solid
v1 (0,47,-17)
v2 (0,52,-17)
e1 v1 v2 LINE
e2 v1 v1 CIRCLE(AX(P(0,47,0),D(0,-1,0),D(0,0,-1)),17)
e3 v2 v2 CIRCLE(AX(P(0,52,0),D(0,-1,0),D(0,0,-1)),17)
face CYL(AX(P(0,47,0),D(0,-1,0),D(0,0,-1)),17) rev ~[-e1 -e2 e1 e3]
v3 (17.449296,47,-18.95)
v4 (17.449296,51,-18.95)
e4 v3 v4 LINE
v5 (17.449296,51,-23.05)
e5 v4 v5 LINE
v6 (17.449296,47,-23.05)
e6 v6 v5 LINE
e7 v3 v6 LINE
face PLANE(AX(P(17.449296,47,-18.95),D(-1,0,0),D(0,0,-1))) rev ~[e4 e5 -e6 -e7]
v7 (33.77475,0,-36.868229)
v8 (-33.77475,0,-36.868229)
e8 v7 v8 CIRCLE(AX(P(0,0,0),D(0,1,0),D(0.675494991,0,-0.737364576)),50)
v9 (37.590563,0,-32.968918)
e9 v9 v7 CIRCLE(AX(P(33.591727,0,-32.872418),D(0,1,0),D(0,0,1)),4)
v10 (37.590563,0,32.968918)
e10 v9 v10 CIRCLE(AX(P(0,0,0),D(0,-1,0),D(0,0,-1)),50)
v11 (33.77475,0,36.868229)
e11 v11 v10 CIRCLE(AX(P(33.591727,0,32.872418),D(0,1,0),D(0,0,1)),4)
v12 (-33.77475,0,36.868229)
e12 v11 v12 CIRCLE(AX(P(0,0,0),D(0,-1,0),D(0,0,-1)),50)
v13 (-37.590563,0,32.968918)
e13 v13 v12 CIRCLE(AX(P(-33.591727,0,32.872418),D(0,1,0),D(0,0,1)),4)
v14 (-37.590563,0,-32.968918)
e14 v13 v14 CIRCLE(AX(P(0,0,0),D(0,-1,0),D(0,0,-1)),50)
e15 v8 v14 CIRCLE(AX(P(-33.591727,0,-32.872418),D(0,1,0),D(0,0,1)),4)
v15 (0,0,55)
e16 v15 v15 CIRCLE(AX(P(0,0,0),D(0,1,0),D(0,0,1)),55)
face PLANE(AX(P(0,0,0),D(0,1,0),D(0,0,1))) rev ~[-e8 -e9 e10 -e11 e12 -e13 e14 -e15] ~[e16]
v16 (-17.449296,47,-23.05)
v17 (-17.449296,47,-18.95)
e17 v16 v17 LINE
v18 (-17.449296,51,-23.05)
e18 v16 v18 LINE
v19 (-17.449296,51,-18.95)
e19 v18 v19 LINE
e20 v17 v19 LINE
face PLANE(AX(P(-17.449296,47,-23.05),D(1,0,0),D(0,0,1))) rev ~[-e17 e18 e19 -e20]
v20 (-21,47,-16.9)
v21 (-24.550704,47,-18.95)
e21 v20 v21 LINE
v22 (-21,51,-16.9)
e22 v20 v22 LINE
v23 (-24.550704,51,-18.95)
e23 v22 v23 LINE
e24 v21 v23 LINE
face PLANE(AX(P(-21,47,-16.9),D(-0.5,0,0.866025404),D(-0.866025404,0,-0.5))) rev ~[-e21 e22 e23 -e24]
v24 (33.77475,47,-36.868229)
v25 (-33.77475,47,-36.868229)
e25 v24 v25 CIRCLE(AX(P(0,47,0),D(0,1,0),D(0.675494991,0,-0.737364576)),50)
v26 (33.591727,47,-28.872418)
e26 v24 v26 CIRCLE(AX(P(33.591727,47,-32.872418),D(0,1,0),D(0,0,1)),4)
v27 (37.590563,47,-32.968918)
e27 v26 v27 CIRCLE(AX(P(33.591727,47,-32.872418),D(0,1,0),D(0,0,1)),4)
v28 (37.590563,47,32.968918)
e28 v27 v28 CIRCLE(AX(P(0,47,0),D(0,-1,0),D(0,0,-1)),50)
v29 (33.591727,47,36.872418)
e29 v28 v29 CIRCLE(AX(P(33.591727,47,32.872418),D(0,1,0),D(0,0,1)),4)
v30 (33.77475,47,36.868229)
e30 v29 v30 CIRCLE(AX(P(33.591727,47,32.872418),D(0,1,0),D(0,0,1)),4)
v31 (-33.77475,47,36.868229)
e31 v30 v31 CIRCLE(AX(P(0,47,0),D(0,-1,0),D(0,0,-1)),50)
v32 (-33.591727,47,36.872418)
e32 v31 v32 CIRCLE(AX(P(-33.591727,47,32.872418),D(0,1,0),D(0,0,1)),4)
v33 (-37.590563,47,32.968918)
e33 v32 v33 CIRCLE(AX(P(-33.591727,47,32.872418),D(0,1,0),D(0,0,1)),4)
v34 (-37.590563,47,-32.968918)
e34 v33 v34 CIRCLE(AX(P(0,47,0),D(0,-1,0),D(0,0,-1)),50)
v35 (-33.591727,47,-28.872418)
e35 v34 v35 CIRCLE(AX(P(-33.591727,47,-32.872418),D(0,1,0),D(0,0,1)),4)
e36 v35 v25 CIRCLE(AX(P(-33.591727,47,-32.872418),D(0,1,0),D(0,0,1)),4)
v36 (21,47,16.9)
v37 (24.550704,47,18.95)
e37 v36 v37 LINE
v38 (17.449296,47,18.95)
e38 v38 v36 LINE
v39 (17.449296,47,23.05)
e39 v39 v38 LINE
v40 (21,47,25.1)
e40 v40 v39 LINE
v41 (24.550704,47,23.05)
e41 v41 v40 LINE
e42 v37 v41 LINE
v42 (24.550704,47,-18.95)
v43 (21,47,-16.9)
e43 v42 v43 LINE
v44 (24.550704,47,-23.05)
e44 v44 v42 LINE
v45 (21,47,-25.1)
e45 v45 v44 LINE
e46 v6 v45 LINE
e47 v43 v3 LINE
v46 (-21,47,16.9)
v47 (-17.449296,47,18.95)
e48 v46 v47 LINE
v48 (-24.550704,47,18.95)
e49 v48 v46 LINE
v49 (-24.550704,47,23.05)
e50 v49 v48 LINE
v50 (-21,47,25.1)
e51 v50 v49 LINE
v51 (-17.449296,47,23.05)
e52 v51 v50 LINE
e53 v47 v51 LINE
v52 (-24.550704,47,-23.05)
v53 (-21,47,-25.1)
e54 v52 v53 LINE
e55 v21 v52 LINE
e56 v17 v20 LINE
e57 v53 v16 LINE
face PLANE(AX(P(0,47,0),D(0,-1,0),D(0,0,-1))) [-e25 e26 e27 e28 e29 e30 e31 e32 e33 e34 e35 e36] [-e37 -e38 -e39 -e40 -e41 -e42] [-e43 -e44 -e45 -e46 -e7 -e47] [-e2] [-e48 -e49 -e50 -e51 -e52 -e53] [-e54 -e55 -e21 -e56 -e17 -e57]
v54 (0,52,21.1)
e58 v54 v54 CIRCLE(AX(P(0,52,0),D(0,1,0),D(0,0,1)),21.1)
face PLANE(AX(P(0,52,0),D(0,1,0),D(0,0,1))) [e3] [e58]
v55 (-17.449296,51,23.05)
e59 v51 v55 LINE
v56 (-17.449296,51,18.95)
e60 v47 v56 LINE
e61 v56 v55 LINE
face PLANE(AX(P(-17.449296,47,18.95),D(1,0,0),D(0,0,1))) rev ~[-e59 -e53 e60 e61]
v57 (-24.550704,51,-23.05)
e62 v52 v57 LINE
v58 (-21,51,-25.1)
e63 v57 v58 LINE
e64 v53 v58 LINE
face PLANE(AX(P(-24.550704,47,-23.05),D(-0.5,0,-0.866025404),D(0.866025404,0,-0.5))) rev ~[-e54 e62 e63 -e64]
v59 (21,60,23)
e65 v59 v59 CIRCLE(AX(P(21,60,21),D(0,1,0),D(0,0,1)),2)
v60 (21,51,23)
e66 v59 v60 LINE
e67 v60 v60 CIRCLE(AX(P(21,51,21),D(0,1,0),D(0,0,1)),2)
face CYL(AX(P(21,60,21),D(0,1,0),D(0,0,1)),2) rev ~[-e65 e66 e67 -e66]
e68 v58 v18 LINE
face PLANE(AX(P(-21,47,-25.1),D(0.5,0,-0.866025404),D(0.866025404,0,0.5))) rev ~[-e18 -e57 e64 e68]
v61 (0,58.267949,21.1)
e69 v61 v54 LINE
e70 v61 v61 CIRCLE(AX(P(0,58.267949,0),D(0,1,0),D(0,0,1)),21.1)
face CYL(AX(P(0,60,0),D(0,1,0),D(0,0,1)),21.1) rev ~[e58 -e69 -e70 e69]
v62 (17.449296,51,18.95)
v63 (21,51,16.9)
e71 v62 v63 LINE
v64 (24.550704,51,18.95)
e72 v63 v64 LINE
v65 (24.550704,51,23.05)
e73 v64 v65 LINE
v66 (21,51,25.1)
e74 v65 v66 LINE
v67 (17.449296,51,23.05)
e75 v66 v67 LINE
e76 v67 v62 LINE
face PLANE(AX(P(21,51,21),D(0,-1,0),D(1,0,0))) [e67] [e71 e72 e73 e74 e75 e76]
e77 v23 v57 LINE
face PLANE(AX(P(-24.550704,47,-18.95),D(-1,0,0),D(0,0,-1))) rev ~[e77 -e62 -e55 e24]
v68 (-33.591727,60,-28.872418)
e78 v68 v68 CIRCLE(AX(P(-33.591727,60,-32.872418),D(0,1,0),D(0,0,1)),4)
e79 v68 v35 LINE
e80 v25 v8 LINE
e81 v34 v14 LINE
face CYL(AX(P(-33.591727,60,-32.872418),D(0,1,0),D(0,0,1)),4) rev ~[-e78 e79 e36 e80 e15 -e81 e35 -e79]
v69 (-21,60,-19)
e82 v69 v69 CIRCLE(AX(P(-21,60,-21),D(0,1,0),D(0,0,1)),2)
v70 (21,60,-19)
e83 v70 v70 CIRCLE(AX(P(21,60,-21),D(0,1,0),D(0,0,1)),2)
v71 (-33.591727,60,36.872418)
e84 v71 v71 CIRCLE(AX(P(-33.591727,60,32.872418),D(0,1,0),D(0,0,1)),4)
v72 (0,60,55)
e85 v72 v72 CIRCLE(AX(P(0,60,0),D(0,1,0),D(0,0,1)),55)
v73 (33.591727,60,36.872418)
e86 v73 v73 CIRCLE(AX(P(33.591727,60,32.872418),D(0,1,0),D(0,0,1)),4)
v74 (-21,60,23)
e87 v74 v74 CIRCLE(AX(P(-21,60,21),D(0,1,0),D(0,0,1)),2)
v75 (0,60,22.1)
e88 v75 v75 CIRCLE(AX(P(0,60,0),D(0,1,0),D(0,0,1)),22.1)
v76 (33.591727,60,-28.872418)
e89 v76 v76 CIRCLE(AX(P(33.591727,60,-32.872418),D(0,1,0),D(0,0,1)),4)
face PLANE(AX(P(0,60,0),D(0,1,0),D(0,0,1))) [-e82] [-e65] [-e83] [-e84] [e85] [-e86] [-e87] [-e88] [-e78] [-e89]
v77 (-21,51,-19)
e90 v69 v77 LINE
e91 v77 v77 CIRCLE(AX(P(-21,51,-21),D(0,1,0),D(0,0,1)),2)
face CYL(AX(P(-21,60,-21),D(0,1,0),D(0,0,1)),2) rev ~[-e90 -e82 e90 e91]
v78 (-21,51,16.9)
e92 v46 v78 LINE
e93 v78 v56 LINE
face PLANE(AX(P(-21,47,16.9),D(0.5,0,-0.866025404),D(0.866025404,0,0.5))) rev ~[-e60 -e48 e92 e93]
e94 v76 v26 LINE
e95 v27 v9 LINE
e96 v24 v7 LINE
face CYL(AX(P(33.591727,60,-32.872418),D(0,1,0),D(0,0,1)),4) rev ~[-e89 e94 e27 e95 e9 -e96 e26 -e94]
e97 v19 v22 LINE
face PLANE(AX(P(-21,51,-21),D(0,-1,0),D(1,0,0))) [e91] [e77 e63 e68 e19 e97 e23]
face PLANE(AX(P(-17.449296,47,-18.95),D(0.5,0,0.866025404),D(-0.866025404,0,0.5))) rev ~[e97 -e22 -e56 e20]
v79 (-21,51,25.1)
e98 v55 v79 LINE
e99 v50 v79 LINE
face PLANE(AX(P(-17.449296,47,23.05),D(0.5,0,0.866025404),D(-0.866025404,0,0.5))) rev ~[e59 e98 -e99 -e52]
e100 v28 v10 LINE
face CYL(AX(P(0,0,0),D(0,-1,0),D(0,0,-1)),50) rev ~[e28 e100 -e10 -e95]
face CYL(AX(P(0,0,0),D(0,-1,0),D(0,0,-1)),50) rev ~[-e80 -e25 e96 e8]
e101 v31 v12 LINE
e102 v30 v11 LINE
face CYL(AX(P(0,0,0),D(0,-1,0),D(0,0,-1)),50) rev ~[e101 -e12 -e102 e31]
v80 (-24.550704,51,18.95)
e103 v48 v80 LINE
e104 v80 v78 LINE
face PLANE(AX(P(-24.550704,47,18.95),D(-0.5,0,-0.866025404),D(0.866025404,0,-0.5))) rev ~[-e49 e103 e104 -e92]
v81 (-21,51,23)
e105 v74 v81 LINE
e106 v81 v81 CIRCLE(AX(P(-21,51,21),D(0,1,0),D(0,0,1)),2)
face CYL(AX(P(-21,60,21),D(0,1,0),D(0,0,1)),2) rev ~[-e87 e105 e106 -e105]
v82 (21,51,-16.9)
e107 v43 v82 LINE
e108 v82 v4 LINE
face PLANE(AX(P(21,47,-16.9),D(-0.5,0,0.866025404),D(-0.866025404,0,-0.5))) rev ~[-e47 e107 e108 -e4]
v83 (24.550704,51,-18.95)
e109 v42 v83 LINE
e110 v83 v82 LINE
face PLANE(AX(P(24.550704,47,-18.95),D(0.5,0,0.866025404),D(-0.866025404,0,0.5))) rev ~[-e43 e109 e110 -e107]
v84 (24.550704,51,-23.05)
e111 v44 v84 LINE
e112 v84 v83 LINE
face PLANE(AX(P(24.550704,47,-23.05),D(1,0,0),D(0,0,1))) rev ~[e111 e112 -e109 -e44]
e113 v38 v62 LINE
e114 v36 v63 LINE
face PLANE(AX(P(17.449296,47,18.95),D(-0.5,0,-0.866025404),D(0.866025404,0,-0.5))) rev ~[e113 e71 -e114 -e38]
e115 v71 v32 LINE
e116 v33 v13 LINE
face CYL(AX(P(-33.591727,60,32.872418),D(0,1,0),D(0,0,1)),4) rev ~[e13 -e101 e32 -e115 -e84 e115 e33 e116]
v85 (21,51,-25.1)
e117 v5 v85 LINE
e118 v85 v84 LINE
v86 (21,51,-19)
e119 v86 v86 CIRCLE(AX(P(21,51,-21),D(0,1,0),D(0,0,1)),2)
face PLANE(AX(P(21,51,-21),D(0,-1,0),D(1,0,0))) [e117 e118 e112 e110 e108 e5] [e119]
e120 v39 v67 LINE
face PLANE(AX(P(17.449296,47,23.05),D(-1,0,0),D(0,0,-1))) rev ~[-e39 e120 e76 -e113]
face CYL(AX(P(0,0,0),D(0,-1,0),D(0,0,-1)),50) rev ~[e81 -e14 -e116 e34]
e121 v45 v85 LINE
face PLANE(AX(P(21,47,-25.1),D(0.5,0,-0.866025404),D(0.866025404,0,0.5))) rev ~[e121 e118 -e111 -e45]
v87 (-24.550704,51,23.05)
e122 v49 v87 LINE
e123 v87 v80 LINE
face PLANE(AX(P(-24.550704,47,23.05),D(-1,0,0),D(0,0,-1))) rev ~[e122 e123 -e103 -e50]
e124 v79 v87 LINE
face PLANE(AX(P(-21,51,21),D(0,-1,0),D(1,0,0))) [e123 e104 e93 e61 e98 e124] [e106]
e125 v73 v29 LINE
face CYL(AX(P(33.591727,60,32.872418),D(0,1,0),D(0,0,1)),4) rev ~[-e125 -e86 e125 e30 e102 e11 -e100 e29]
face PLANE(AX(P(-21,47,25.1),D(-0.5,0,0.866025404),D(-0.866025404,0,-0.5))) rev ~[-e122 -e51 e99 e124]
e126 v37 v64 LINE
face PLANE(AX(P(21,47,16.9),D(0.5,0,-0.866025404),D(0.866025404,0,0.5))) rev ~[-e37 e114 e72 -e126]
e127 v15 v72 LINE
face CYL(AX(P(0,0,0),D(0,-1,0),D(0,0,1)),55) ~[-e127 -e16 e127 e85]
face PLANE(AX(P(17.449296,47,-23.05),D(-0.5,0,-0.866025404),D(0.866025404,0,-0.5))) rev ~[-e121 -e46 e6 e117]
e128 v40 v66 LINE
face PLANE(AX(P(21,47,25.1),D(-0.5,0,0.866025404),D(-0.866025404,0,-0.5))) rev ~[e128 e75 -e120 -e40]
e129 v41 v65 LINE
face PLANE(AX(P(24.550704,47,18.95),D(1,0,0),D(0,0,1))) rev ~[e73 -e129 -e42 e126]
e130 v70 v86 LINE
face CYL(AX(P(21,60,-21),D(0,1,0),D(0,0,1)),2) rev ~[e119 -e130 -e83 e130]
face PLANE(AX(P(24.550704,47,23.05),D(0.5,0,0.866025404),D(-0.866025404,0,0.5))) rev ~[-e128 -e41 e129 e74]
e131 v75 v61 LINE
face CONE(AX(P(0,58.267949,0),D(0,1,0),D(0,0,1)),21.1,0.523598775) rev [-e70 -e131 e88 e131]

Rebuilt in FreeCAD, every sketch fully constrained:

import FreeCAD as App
import Part
import Sketcher

V = App.Vector
Q = App.Units.Quantity


def edges_at(feature, points):
    """Names of the edges that pass closest to the given points."""
    edges = feature.Shape.Edges
    near = lambda p: min(range(len(edges)), key=lambda i: edges[i].distToShape(Part.Vertex(*p))[0])
    return sorted({f"Edge{near(p) + 1}" for p in points})


def add_polygon(sketch, points):
    """Adds a closed chain of lines whose ends are joined by coincident constraints."""
    first, n = sketch.GeometryCount, len(points)
    for a, b in zip(points, points[1:] + points[:1]):
        sketch.addGeometry(Part.LineSegment(App.Vector(*a, 0), App.Vector(*b, 0)), False)
    for i in range(n):
        sketch.addConstraint(Sketcher.Constraint("Coincident", first + i, 2, first + (i + 1) % n, 1))

doc = App.newDocument("Part")
params = doc.addObject("Spreadsheet::Sheet", "Params")
for row, (alias, value) in enumerate([
    ("sketch1_diameter", "110 mm"),
    ("pad1_length", "60 mm"),
    ("sketch2_diameter", "100 mm"),
    ("pocket1_length", "47 mm"),
    ("sketch3_diameter", "34 mm"),
    ("sketch4_diameter", "8 mm"),
    ("sketch5_diameter", "42.2 mm"),
    ("pocket4_length", "8 mm"),
    ("chamfer_size", "1 mm"),
    ("chamfer_size2", "1.732051 mm"),
    ("sketch6_diameter", "4 mm"),
    ("sketch7_height", "4.1 mm"),
    ("sketch7_length", "4.1 mm"),
    ("pocket6_length", "4 mm"),
], start=1):
    params.set(f"A{row}", alias)
    params.set(f"B{row}", "=" + value)
    params.setAlias(f"B{row}", alias)

body = doc.addObject("PartDesign::Body", "Body")

# Sketch on XZ plane
sketch1 = doc.addObject("Sketcher::SketchObject", "Sketch")
body.addObject(sketch1)
sketch1.AttachmentSupport = (doc.XZ_Plane, [""])
sketch1.MapMode = "FlatFace"
sketch1.addGeometry(Part.Circle(V(0, 0, 0), V(0, 0, 1), 55), False)
sketch1.addConstraint(Sketcher.Constraint("Coincident", 0, 3, -1, 1))
sketch1.addConstraint(Sketcher.Constraint("Diameter", 0, 110.0))
sketch1.setExpression("Constraints[1]", "Params.sketch1_diameter")
pad1 = doc.addObject("PartDesign::Pad", "Pad")
body.addObject(pad1)
pad1.Profile = sketch1
pad1.setExpression("Length", "Params.pad1_length")
pad1.Reversed = True

# Sketch on XZ plane
sketch2 = doc.addObject("Sketcher::SketchObject", "Sketch001")
body.addObject(sketch2)
sketch2.AttachmentSupport = (doc.XZ_Plane, [""])
sketch2.MapMode = "FlatFace"
sketch2.addGeometry(Part.Circle(V(0, 0, 0), V(0, 0, 1), 50), False)
sketch2.addConstraint(Sketcher.Constraint("Coincident", 0, 3, -1, 1))
sketch2.addConstraint(Sketcher.Constraint("Diameter", 0, 100.0))
sketch2.setExpression("Constraints[1]", "Params.sketch2_diameter")
pocket1 = doc.addObject("PartDesign::Pocket", "Pocket")
body.addObject(pocket1)
pocket1.Profile = sketch2
pocket1.setExpression("Length", "Params.pocket1_length")

# Sketch on XZ plane
sketch3 = doc.addObject("Sketcher::SketchObject", "Sketch002")
body.addObject(sketch3)
sketch3.AttachmentSupport = (doc.XZ_Plane, [""])
sketch3.MapMode = "FlatFace"
sketch3.AttachmentOffset = App.Placement(V(0, 0, -47), App.Rotation())
sketch3.addGeometry(Part.Circle(V(0, 0, 0), V(0, 0, 1), 17), False)
sketch3.addConstraint(Sketcher.Constraint("Coincident", 0, 3, -1, 1))
sketch3.addConstraint(Sketcher.Constraint("Diameter", 0, 34.0))
sketch3.setExpression("Constraints[1]", "Params.sketch3_diameter")
pocket2 = doc.addObject("PartDesign::Pocket", "Pocket001")
body.addObject(pocket2)
pocket2.Profile = sketch3
pocket2.Type = "ThroughAll"

# Sketch on XZ plane
sketch4 = doc.addObject("Sketcher::SketchObject", "Sketch003")
body.addObject(sketch4)
sketch4.AttachmentSupport = (doc.XZ_Plane, [""])
sketch4.MapMode = "FlatFace"
sketch4.AttachmentOffset = App.Placement(V(0, 0, -60), App.Rotation())
sketch4.addGeometry(Part.Circle(V(33.6, 32.9, 0), V(0, 0, 1), 4), False)
sketch4.addGeometry(Part.Circle(V(-33.6, 32.9, 0), V(0, 0, 1), 4), False)
sketch4.addGeometry(Part.Circle(V(-33.6, -32.9, 0), V(0, 0, 1), 4), False)
sketch4.addGeometry(Part.Circle(V(33.6, -32.9, 0), V(0, 0, 1), 4), False)
sketch4.addConstraint(Sketcher.Constraint("Equal", 0, 1))
sketch4.addConstraint(Sketcher.Constraint("Equal", 1, 2))
sketch4.addConstraint(Sketcher.Constraint("Equal", 2, 3))
sketch4.addConstraint(Sketcher.Constraint("Symmetric", 0, 3, 2, 3, -1, 1))
sketch4.addConstraint(Sketcher.Constraint("Symmetric", 1, 3, 3, 3, -1, 1))
sketch4.addConstraint(Sketcher.Constraint("Symmetric", 0, 3, 1, 3, -2))
sketch4.addConstraint(Sketcher.Constraint("Diameter", 0, 8.0))
sketch4.addConstraint(Sketcher.Constraint("DistanceY", -1, 1, 0, 3, 32.872418))
sketch4.addConstraint(Sketcher.Constraint("DistanceX", -1, 1, 0, 3, 33.591727))
sketch4.setExpression("Constraints[6]", "Params.sketch4_diameter")
pocket3 = doc.addObject("PartDesign::Pocket", "Pocket002")
body.addObject(pocket3)
pocket3.Profile = sketch4
pocket3.Type = "ThroughAll"
pocket3.Reversed = True

# Sketch on XZ plane
sketch5 = doc.addObject("Sketcher::SketchObject", "Sketch004")
body.addObject(sketch5)
sketch5.AttachmentSupport = (doc.XZ_Plane, [""])
sketch5.MapMode = "FlatFace"
sketch5.AttachmentOffset = App.Placement(V(0, 0, -60), App.Rotation())
sketch5.addGeometry(Part.Circle(V(0, 0, 0), V(0, 0, 1), 21), False)
sketch5.addConstraint(Sketcher.Constraint("Coincident", 0, 3, -1, 1))
sketch5.addConstraint(Sketcher.Constraint("Diameter", 0, 42.2))
sketch5.setExpression("Constraints[1]", "Params.sketch5_diameter")
pocket4 = doc.addObject("PartDesign::Pocket", "Pocket003")
body.addObject(pocket4)
pocket4.Profile = sketch5
pocket4.setExpression("Length", "Params.pocket4_length")
pocket4.Reversed = True
doc.recompute()

chamfer = doc.addObject("PartDesign::Chamfer", "Chamfer")
body.addObject(chamfer)
chamfer.Base = (pocket4, edges_at(pocket4, [(0, 60, -21.1)]))
chamfer.ChamferType = "Two distances"
chamfer.setExpression("Size", "Params.chamfer_size")
chamfer.setExpression("Size2", "Params.chamfer_size2")

# Sketch on XZ plane
sketch6 = doc.addObject("Sketcher::SketchObject", "Sketch005")
body.addObject(sketch6)
sketch6.AttachmentSupport = (doc.XZ_Plane, [""])
sketch6.MapMode = "FlatFace"
sketch6.AttachmentOffset = App.Placement(V(0, 0, -60), App.Rotation())
sketch6.addGeometry(Part.Circle(V(21, -21, 0), V(0, 0, 1), 2), False)
sketch6.addGeometry(Part.Circle(V(-21, -21, 0), V(0, 0, 1), 2), False)
sketch6.addGeometry(Part.Circle(V(21, 21, 0), V(0, 0, 1), 2), False)
sketch6.addGeometry(Part.Circle(V(-21, 21, 0), V(0, 0, 1), 2), False)
sketch6.addConstraint(Sketcher.Constraint("Equal", 0, 1))
sketch6.addConstraint(Sketcher.Constraint("Equal", 1, 2))
sketch6.addConstraint(Sketcher.Constraint("Equal", 2, 3))
sketch6.addConstraint(Sketcher.Constraint("Symmetric", 1, 3, 2, 3, -1, 1))
sketch6.addConstraint(Sketcher.Constraint("Symmetric", 0, 3, 3, 3, -1, 1))
sketch6.addConstraint(Sketcher.Constraint("Symmetric", 0, 3, 1, 3, -2))
sketch6.addConstraint(Sketcher.Constraint("Diameter", 0, 4.0))
sketch6.addConstraint(Sketcher.Constraint("DistanceX", -1, 1, 0, 3, 21.0))
sketch6.addConstraint(Sketcher.Constraint("DistanceY", 0, 3, -1, 1, 21.0))
sketch6.setExpression("Constraints[6]", "Params.sketch6_diameter")
pocket5 = doc.addObject("PartDesign::Pocket", "Pocket004")
body.addObject(pocket5)
pocket5.Profile = sketch6
pocket5.Type = "ThroughAll"
pocket5.Reversed = True

# Sketch on XZ plane
sketch7 = doc.addObject("Sketcher::SketchObject", "Sketch006")
body.addObject(sketch7)
sketch7.AttachmentSupport = (doc.XZ_Plane, [""])
sketch7.MapMode = "FlatFace"
sketch7.AttachmentOffset = App.Placement(V(0, 0, -47), App.Rotation())
add_polygon(sketch7, [(-21, -16.9), (-24.6, -18.9), (-24.6, -23.1), (-21, -25.1), (-17.4, -23.1), (-17.4, -18.9)])  # lines 0-5
add_polygon(sketch7, [(-21, 25.1), (-24.6, 23.1), (-24.6, 18.9), (-21, 16.9), (-17.4, 18.9), (-17.4, 23.1)])  # lines 6-11
add_polygon(sketch7, [(24.6, 23.1), (21, 25.1), (17.4, 23.1), (17.4, 18.9), (21, 16.9), (24.6, 18.9)])  # lines 12-17
add_polygon(sketch7, [(24.6, -18.9), (21, -16.9), (17.4, -18.9), (17.4, -23.1), (21, -25.1), (24.6, -23.1)])  # lines 18-23
sketch7.addConstraint(Sketcher.Constraint("Vertical", 1))
sketch7.addConstraint(Sketcher.Constraint("Vertical", 4))
sketch7.addConstraint(Sketcher.Constraint("Vertical", 7))
sketch7.addConstraint(Sketcher.Constraint("Vertical", 10))
sketch7.addConstraint(Sketcher.Constraint("Vertical", 14))
sketch7.addConstraint(Sketcher.Constraint("Vertical", 17))
sketch7.addConstraint(Sketcher.Constraint("Vertical", 20))
sketch7.addConstraint(Sketcher.Constraint("Vertical", 23))
sketch7.addConstraint(Sketcher.Constraint("Symmetric", 2, 2, 12, 2, -1, 1))
sketch7.addConstraint(Sketcher.Constraint("Symmetric", 3, 2, 13, 2, -1, 1))
sketch7.addConstraint(Sketcher.Constraint("Symmetric", 5, 2, 15, 2, -1, 1))
sketch7.addConstraint(Sketcher.Constraint("Symmetric", 0, 2, 16, 2, -1, 1))
sketch7.addConstraint(Sketcher.Constraint("Symmetric", 8, 2, 18, 2, -1, 1))
sketch7.addConstraint(Sketcher.Constraint("Symmetric", 9, 2, 19, 2, -1, 1))
sketch7.addConstraint(Sketcher.Constraint("Symmetric", 11, 2, 21, 2, -1, 1))
sketch7.addConstraint(Sketcher.Constraint("Symmetric", 6, 2, 22, 2, -1, 1))
sketch7.addConstraint(Sketcher.Constraint("Symmetric", 11, 2, 12, 2, -2))
sketch7.addConstraint(Sketcher.Constraint("Symmetric", 10, 2, 13, 2, -2))
sketch7.addConstraint(Sketcher.Constraint("Symmetric", 8, 2, 15, 2, -2))
sketch7.addConstraint(Sketcher.Constraint("Symmetric", 7, 2, 16, 2, -2))
sketch7.addConstraint(Sketcher.Constraint("Parallel", 0, 3))
sketch7.addConstraint(Sketcher.Constraint("Parallel", 2, 5))
sketch7.addConstraint(Sketcher.Constraint("Parallel", 3, 6))
sketch7.addConstraint(Sketcher.Constraint("Parallel", 5, 8))
sketch7.addConstraint(Sketcher.Constraint("Parallel", 6, 9))
sketch7.addConstraint(Sketcher.Constraint("Parallel", 11, 12))
sketch7.addConstraint(Sketcher.Constraint("Parallel", 12, 15))
sketch7.addConstraint(Sketcher.Constraint("Parallel", 15, 18))
sketch7.addConstraint(Sketcher.Constraint("Parallel", 18, 21))
sketch7.addConstraint(Sketcher.Constraint("Horizontal", 1, 2, 3, 2))
sketch7.addConstraint(Sketcher.Constraint("Horizontal", 0, 2, 4, 2))
sketch7.addConstraint(Sketcher.Constraint("Angle", 0, Q("-150 deg")))
sketch7.addConstraint(Sketcher.Constraint("DistanceY", 1, 2, 1, 1, 4.1))
sketch7.addConstraint(Sketcher.Constraint("DistanceX", 2, 2, -1, 1, 21.0))
sketch7.addConstraint(Sketcher.Constraint("DistanceY", 0, 2, 6, 2, 42.0))
sketch7.addConstraint(Sketcher.Constraint("Distance", 0, 4.1))
sketch7.setExpression("Constraints[56]", "Params.sketch7_height")
sketch7.setExpression("Constraints[59]", "Params.sketch7_length")
pocket6 = doc.addObject("PartDesign::Pocket", "Pocket005")
body.addObject(pocket6)
pocket6.Profile = sketch7
pocket6.setExpression("Length", "Params.pocket6_length")

doc.recompute()
